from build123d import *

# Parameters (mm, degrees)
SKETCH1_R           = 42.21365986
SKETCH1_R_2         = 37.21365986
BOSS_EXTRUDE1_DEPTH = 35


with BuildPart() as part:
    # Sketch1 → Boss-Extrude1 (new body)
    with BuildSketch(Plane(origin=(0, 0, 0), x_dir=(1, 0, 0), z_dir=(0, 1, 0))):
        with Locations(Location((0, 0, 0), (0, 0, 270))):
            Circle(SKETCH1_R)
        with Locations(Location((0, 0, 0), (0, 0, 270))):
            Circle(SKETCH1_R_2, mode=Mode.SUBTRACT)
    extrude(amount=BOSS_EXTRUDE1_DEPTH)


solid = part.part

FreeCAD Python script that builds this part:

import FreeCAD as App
import Part
import Sketcher
Q = App.Units.Quantity

doc = App.newDocument("Part")
body = doc.addObject("PartDesign::Body", "Body")

# Sketch on XZ plane
sketch1 = body.newObject("Sketcher::SketchObject", "Sketch")
sketch1.AttachmentSupport = (doc.getObject("XZ_Plane"), [""])
sketch1.MapMode = "FlatFace"
sketch1.addGeometry([
    Part.Circle(App.Vector(0, 0, 0), App.Vector(0, 0, 1), 42),
    Part.Circle(App.Vector(0, 0, 0), App.Vector(0, 0, 1), 37),
], False)
sketch1.addConstraint([
    Sketcher.Constraint("Coincident", 0, 3, -1, 1),
    Sketcher.Constraint("Coincident", 1, 3, -1, 1),
    Sketcher.Constraint("Diameter", 0, Q("84.42732 mm")),
    Sketcher.Constraint("Diameter", 1, Q("74.42732 mm")),
])
pad1 = body.newObject("PartDesign::Pad", "Pad")
pad1.Profile = sketch1
pad1.Length = 35
pad1.Reversed = True

doc.recompute()
